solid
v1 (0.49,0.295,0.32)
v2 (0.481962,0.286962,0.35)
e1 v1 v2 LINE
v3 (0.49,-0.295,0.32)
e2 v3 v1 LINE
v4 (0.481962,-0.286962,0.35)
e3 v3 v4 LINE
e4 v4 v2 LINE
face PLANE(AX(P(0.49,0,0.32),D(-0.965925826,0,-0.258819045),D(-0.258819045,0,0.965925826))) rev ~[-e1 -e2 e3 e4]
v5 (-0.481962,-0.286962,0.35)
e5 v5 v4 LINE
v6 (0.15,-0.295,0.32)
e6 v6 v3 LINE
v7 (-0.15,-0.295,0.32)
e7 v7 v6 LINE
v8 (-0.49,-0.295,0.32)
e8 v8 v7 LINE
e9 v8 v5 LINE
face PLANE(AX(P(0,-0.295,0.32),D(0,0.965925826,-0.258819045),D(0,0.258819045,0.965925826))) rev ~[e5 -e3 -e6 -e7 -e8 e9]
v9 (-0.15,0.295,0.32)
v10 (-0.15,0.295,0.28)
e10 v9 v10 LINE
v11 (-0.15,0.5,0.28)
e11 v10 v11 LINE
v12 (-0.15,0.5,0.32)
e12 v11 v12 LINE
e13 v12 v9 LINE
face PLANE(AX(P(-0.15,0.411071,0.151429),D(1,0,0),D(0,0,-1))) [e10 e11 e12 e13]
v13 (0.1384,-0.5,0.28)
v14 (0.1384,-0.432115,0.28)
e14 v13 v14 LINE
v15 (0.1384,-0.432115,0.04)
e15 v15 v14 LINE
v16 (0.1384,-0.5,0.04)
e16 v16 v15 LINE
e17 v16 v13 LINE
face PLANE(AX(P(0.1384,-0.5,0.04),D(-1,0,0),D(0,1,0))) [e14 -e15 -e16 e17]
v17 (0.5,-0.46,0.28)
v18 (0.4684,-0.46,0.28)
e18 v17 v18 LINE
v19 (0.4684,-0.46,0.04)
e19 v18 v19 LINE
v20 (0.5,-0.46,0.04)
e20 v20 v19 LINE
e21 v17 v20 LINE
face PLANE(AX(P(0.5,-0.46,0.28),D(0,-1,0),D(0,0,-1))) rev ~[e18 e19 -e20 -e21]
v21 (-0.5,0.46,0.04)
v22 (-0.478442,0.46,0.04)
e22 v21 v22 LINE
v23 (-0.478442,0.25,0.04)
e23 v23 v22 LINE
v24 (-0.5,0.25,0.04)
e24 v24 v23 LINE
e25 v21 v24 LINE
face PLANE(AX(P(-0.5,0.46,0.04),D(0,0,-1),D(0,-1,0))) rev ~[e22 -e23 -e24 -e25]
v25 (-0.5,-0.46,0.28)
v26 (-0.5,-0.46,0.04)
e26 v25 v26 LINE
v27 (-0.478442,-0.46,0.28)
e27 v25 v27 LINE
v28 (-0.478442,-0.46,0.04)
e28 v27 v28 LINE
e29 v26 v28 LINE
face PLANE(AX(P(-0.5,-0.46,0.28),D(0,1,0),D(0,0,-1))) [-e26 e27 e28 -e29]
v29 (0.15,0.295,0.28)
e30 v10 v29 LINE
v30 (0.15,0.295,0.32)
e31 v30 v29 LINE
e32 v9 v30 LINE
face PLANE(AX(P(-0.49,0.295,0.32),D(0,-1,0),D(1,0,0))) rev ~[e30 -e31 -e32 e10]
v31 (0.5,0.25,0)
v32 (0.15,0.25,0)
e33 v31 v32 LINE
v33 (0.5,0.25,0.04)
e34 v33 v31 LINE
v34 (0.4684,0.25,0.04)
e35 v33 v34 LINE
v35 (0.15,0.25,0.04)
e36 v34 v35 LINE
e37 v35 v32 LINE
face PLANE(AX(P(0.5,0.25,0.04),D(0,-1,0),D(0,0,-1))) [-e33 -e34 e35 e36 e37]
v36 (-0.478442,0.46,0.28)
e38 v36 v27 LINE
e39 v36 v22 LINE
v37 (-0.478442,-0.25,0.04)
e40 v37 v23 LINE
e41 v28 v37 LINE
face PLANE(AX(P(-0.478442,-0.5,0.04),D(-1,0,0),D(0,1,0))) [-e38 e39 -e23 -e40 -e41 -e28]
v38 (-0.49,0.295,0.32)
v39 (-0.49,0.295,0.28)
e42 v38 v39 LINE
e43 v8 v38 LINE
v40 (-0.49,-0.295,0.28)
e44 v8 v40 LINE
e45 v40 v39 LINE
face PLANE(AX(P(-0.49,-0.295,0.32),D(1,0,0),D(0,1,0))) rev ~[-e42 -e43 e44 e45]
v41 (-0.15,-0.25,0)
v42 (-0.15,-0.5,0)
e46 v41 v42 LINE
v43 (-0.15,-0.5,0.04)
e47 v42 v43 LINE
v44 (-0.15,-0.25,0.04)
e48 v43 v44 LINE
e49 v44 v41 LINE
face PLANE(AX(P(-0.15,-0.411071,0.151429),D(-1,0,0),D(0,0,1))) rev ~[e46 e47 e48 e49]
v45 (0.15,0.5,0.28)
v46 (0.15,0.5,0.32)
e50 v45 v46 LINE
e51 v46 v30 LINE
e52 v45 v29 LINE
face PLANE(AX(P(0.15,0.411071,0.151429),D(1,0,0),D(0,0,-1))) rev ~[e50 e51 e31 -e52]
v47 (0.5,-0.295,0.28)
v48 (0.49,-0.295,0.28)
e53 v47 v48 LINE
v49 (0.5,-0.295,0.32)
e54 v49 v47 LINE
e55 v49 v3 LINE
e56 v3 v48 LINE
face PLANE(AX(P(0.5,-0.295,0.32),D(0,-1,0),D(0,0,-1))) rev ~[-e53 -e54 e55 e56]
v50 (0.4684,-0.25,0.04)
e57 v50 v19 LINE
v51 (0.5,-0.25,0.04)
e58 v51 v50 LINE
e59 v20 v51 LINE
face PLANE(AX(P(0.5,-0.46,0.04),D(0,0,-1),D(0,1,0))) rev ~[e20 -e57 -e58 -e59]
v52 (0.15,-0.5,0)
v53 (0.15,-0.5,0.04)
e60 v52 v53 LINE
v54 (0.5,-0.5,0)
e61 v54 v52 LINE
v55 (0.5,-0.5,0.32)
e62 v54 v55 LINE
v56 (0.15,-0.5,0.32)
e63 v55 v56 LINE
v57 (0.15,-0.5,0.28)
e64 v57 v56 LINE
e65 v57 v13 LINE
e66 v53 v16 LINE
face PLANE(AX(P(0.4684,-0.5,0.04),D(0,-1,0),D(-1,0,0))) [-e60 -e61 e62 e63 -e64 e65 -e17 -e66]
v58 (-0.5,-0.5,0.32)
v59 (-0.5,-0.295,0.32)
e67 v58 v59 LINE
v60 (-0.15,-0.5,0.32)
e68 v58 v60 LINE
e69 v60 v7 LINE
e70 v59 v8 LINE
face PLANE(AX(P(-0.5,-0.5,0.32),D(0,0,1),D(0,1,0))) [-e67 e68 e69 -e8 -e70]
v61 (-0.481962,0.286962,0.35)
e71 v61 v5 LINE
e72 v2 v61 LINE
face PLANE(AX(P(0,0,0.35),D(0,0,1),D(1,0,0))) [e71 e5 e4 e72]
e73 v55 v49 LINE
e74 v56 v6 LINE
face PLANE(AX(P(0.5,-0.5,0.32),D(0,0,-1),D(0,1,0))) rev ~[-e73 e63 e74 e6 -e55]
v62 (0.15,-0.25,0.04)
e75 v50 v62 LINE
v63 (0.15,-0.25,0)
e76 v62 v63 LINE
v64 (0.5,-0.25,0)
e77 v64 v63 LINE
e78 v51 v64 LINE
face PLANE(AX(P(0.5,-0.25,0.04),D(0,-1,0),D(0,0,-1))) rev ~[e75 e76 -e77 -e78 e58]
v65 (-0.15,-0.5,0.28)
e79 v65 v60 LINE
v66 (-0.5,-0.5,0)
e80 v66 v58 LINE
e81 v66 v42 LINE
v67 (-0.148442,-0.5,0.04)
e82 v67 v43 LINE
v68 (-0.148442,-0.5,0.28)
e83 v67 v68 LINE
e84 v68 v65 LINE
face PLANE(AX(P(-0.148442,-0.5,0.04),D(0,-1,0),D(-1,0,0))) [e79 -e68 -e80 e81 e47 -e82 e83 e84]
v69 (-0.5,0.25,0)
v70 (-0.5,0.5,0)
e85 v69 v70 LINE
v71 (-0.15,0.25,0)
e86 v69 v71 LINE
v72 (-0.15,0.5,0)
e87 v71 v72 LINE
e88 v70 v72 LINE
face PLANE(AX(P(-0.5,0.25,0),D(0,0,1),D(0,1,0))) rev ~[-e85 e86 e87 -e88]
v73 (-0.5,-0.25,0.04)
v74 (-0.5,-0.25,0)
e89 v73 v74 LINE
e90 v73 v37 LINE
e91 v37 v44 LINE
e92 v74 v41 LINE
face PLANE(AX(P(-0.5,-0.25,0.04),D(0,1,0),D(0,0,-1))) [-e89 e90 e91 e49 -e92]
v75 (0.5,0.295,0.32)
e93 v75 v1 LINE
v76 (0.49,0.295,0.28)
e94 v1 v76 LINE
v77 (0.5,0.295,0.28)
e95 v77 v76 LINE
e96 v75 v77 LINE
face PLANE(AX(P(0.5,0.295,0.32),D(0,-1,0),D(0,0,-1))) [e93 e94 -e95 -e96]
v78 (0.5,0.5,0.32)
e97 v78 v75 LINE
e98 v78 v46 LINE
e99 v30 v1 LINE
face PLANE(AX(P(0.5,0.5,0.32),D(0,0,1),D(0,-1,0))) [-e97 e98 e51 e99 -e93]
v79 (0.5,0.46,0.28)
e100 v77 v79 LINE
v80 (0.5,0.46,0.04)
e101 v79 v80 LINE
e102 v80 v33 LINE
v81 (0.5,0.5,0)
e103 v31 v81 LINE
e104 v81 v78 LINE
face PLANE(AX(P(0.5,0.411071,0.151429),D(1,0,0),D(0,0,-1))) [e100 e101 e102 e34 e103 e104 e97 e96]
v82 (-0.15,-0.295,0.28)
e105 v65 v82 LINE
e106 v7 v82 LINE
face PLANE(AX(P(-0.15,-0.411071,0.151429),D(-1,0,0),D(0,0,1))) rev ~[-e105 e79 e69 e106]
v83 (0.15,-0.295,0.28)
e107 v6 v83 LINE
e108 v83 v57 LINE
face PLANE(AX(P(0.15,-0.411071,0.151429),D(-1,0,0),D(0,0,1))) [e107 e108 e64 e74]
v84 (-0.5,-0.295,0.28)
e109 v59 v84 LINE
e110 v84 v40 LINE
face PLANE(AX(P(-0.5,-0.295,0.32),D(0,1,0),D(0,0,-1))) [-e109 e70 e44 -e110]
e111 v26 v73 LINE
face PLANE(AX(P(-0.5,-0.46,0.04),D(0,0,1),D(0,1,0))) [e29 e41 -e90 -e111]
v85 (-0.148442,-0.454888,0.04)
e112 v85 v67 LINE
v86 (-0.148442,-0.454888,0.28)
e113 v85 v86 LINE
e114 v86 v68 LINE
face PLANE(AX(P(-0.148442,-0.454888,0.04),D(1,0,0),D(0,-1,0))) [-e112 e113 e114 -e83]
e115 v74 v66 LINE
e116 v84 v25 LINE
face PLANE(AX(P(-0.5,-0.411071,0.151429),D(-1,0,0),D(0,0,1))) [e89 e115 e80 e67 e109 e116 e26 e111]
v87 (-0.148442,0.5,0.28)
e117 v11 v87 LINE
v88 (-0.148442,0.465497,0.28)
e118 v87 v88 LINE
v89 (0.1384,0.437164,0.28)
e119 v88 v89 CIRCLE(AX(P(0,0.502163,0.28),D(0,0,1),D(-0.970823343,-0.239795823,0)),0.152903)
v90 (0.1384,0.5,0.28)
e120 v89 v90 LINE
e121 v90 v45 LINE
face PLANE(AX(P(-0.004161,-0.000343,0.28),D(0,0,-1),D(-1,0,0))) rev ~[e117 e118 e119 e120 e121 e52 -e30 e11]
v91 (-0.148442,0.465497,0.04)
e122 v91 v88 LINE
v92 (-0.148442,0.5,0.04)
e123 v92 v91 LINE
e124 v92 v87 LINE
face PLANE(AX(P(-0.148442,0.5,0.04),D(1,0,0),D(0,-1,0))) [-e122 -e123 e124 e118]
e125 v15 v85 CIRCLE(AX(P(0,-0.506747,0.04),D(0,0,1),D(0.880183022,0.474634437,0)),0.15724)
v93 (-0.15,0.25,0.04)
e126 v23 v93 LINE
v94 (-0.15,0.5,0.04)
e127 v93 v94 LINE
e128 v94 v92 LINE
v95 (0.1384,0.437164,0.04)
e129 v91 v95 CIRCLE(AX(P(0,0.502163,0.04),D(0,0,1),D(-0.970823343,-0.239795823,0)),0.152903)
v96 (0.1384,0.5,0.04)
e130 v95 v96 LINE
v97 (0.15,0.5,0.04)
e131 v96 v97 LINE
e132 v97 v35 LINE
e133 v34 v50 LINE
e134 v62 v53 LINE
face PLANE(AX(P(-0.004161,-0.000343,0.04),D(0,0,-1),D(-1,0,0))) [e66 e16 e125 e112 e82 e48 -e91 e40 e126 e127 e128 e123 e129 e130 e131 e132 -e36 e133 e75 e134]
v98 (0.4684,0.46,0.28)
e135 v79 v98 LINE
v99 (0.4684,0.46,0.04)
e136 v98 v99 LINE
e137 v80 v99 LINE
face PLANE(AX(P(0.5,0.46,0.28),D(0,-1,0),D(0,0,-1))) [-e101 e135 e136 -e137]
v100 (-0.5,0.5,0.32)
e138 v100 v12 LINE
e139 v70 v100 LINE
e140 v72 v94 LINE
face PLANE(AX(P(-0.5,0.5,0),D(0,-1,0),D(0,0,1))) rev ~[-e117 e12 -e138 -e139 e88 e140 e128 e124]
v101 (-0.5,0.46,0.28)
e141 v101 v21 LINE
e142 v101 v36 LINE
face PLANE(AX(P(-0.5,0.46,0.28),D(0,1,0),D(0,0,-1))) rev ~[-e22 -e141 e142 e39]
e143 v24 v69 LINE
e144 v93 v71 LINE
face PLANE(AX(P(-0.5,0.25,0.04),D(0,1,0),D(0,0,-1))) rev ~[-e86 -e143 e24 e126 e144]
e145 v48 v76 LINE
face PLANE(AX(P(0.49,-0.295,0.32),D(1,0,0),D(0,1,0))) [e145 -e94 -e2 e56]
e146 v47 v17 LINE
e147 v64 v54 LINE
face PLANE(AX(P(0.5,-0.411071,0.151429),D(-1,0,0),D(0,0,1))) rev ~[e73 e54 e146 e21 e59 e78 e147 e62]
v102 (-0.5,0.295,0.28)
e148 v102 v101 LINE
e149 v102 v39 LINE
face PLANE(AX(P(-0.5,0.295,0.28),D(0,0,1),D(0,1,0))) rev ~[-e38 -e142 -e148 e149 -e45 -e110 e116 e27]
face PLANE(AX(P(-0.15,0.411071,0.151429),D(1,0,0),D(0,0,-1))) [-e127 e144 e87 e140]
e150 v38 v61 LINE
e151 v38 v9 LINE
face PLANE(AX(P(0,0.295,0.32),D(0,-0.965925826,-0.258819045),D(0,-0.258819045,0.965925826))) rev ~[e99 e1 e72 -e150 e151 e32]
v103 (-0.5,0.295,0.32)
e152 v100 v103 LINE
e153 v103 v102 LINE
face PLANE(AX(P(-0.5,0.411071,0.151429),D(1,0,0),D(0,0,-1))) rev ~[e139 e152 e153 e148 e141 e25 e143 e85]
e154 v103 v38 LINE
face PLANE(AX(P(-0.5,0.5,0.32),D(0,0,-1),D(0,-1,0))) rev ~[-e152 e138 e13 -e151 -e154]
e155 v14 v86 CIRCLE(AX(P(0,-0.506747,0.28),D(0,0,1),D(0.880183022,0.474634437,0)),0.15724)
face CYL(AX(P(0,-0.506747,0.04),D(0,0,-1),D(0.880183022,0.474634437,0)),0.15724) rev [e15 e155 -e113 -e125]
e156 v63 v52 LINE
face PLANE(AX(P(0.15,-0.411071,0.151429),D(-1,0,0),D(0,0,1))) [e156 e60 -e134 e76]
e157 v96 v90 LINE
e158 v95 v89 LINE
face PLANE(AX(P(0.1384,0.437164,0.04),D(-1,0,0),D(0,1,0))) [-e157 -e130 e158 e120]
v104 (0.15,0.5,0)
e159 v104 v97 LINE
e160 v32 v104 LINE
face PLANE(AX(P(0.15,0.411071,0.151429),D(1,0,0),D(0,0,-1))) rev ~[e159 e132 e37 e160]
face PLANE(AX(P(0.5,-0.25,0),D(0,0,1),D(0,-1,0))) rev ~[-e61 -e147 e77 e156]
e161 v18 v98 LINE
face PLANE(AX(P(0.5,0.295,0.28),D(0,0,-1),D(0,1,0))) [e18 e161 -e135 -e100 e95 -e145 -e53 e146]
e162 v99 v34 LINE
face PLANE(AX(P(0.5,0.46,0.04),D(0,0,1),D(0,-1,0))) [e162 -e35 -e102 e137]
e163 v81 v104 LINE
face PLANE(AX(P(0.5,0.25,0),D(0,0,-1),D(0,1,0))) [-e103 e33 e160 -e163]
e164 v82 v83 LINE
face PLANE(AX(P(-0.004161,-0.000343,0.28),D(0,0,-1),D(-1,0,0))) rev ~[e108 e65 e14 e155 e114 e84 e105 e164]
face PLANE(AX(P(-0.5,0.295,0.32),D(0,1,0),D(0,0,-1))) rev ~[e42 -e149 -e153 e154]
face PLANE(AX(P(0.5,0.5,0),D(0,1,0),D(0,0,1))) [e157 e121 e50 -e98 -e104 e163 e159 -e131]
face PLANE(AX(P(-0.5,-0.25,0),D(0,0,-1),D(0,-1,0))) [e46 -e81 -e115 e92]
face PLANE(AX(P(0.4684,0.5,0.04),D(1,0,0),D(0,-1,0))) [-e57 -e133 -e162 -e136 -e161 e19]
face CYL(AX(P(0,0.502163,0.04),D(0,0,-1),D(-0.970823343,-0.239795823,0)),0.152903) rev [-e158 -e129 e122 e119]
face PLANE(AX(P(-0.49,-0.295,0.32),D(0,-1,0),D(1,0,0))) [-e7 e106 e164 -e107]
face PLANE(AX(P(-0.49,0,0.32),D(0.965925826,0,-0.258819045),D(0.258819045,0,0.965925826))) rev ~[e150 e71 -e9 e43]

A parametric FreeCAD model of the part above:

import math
import FreeCAD as App
import Part
import Sketcher
from FreeCAD import Vector


def add_polygon(sketch, points):
    """Adds a closed chain of lines whose ends are joined by coincident constraints."""
    first, n = sketch.GeometryCount, len(points)
    for a, b in zip(points, points[1:] + points[:1]):
        sketch.addGeometry(Part.LineSegment(App.Vector(*a, 0), App.Vector(*b, 0)), False)
    for i in range(n):
        sketch.addConstraint(Sketcher.Constraint("Coincident", first + i, 2, first + (i + 1) % n, 1))

doc = App.newDocument("Part")
params = doc.addObject("Spreadsheet::Sheet", "Params")
for row, (alias, value) in enumerate([
    ("sketch1_height", "1 mm"),
    ("sketch1_width", "0.33 mm"),
    ("pad1_length", "0.24 mm"),
    ("sketch2_width", "0.98 mm"),
    ("sketch2_height", "0.59 mm"),
    ("pad2_length", "0.03 mm"),
    ("pad2_taper", "-15 deg"),
    ("sketch3_width", "0.98 mm"),
    ("sketch3_height", "0.59 mm"),
    ("pad3_length", "0.04 mm"),
    ("sketch4_width", "0.21 mm"),
    ("sketch4_width2", "0.25 mm"),
    ("sketch4_height", "0.04 mm"),
    ("sketch4_height2", "0.24 mm"),
    ("pad4_length", "0.35 mm"),
    ("sketch5_width", "0.21 mm"),
    ("sketch5_width2", "0.25 mm"),
    ("sketch5_height", "0.04 mm"),
    ("sketch5_height2", "0.24 mm"),
    ("pad5_length", "0.35 mm"),
], start=1):
    params.set(f"A{row}", alias)
    params.set(f"B{row}", "=" + value)
    params.setAlias(f"B{row}", alias)

body = doc.addObject("PartDesign::Body", "Body")

# Sketch on XY plane
sketch1 = body.newObject("Sketcher::SketchObject", "Sketch")
sketch1.AttachmentSupport = (doc.getObject("XY_Plane"), [""])
sketch1.MapMode = "FlatFace"
sketch1.AttachmentOffset = App.Placement(Vector(0, 0, 0.04), App.Rotation())
sketch1.addGeometry([
    Part.LineSegment(Vector(-0.148, 0.465, 0), Vector(-0.148, 0.5, 0)),  # 0
    Part.LineSegment(Vector(-0.148, 0.5, 0), Vector(-0.478, 0.5, 0)),  # 1
    Part.LineSegment(Vector(-0.478, 0.5, 0), Vector(-0.478, -0.5, 0)),  # 2
    Part.LineSegment(Vector(-0.478, -0.5, 0), Vector(-0.148, -0.5, 0)),  # 3
    Part.LineSegment(Vector(-0.148, -0.5, 0), Vector(-0.148, -0.455, 0)),  # 4
    Part.ArcOfCircle(Part.Circle(Vector(0, -0.507, 0), Vector(0, 0, 1), 0.157), math.radians(28), math.radians(161)),  # 5
    Part.LineSegment(Vector(0.138, -0.432, 0), Vector(0.138, -0.5, 0)),  # 6
    Part.LineSegment(Vector(0.138, -0.5, 0), Vector(0.468, -0.5, 0)),  # 7
    Part.LineSegment(Vector(0.468, -0.5, 0), Vector(0.468, 0.5, 0)),  # 8
    Part.LineSegment(Vector(0.468, 0.5, 0), Vector(0.138, 0.5, 0)),  # 9
    Part.LineSegment(Vector(0.138, 0.5, 0), Vector(0.138, 0.437, 0)),  # 10
    Part.ArcOfCircle(Part.Circle(Vector(0, 0.502, 0), Vector(0, 0, 1), 0.153), math.radians(-166), math.radians(-25)),  # 11
], False)
sketch1.addConstraint([
    Sketcher.Constraint("Coincident", 0, 2, 1, 1),
    Sketcher.Constraint("Coincident", 1, 2, 2, 1),
    Sketcher.Constraint("Coincident", 2, 2, 3, 1),
    Sketcher.Constraint("Coincident", 3, 2, 4, 1),
    Sketcher.Constraint("Coincident", 4, 2, 5, 2),
    Sketcher.Constraint("Coincident", 5, 1, 6, 1),
    Sketcher.Constraint("Coincident", 6, 2, 7, 1),
    Sketcher.Constraint("Coincident", 7, 2, 8, 1),
    Sketcher.Constraint("Coincident", 8, 2, 9, 1),
    Sketcher.Constraint("Coincident", 9, 2, 10, 1),
    Sketcher.Constraint("Coincident", 10, 2, 11, 2),
    Sketcher.Constraint("Coincident", 11, 1, 0, 1),
    Sketcher.Constraint("Vertical", 0),
    Sketcher.Constraint("Horizontal", 1),
    Sketcher.Constraint("Vertical", 2),
    Sketcher.Constraint("Horizontal", 3),
    Sketcher.Constraint("Vertical", 4),
    Sketcher.Constraint("Vertical", 6),
    Sketcher.Constraint("Horizontal", 7),
    Sketcher.Constraint("Vertical", 8),
    Sketcher.Constraint("Horizontal", 9),
    Sketcher.Constraint("Vertical", 10),
    Sketcher.Constraint("Symmetric", 0, 2, 3, 2, -1),
    Sketcher.Constraint("Symmetric", 6, 2, 9, 2, -1),
    Sketcher.Constraint("PointOnObject", 5, 3, -2),
    Sketcher.Constraint("PointOnObject", 11, 3, -2),
    Sketcher.Constraint("Horizontal", 3, 2, 6, 2),
    Sketcher.Constraint("Equal", 3, 7),
    Sketcher.Constraint("DistanceY", 2, 2, 2, 1, 1.0),
    Sketcher.Constraint("DistanceX", 1, 2, 1, 1, 0.33),
    Sketcher.Constraint("Radius", 5, 0.15724),
    Sketcher.Constraint("Radius", 11, 0.152903),
    Sketcher.Constraint("DistanceY", 10, 2, 11, 3, 0.064999),
    Sketcher.Constraint("DistanceY", 0, 1, 0, 2, 0.034503),
    Sketcher.Constraint("DistanceY", 4, 1, 4, 2, 0.045112),
    Sketcher.Constraint("DistanceY", 6, 2, 6, 1, 0.067885),
])
sketch1.setExpression("Constraints[28]", "Params.sketch1_height")
sketch1.setExpression("Constraints[29]", "Params.sketch1_width")
pad1 = body.newObject("PartDesign::Pad", "Pad")
pad1.Profile = sketch1
pad1.setExpression("Length", "Params.pad1_length")
body2 = doc.addObject("PartDesign::Body", "Body001")

# Sketch on XY plane
sketch2 = body2.newObject("Sketcher::SketchObject", "Sketch001")
sketch2.AttachmentSupport = (doc.getObject("XY_Plane001"), [""])
sketch2.MapMode = "FlatFace"
sketch2.AttachmentOffset = App.Placement(Vector(0, 0, 0.32), App.Rotation())
add_polygon(sketch2, [(-0.5, 0.3), (-0.5, -0.3), (0.5, -0.3), (0.5, 0.3)])  # lines 0-3
sketch2.addConstraint([
    Sketcher.Constraint("Vertical", 0),
    Sketcher.Constraint("Horizontal", 1),
    Sketcher.Constraint("Vertical", 2),
    Sketcher.Constraint("Horizontal", 3),
    Sketcher.Constraint("Symmetric", 0, 2, 2, 2, -1, 1),
    Sketcher.Constraint("DistanceX", 1, 1, 1, 2, 0.98),
    Sketcher.Constraint("DistanceY", 0, 2, 0, 1, 0.59),
])
sketch2.setExpression("Constraints[9]", "Params.sketch2_width")
sketch2.setExpression("Constraints[10]", "Params.sketch2_height")
pad2 = body2.newObject("PartDesign::Pad", "Pad001")
pad2.Profile = sketch2
pad2.setExpression("Length", "Params.pad2_length")
pad2.setExpression("TaperAngle", "Params.pad2_taper")
body.AllowCompound = True
doc.recompute()

boolean = body.newObject("PartDesign::Boolean", "Boolean")
boolean.Type = "Fuse"
boolean.addObjects([body2])

# Sketch on XY plane
sketch3 = body.newObject("Sketcher::SketchObject", "Sketch002")
sketch3.AttachmentSupport = (doc.getObject("XY_Plane"), [""])
sketch3.MapMode = "FlatFace"
sketch3.AttachmentOffset = App.Placement(Vector(0, 0, 0.32), App.Rotation())
add_polygon(sketch3, [(-0.5, 0.3), (-0.5, -0.3), (0.5, -0.3), (0.5, 0.3)])  # lines 0-3
sketch3.addConstraint([
    Sketcher.Constraint("Vertical", 0),
    Sketcher.Constraint("Horizontal", 1),
    Sketcher.Constraint("Vertical", 2),
    Sketcher.Constraint("Horizontal", 3),
    Sketcher.Constraint("Symmetric", 0, 2, 2, 2, -1, 1),
    Sketcher.Constraint("DistanceX", 1, 1, 1, 2, 0.98),
    Sketcher.Constraint("DistanceY", 0, 2, 0, 1, 0.59),
])
sketch3.setExpression("Constraints[9]", "Params.sketch3_width")
sketch3.setExpression("Constraints[10]", "Params.sketch3_height")
pad3 = body.newObject("PartDesign::Pad", "Pad002")
pad3.Profile = sketch3
pad3.setExpression("Length", "Params.pad3_length")
pad3.Reversed = True

# Sketch on YZ plane
sketch4 = body.newObject("Sketcher::SketchObject", "Sketch003")
sketch4.AttachmentSupport = (doc.getObject("YZ_Plane"), [""])
sketch4.MapMode = "FlatFace"
sketch4.AttachmentOffset = App.Placement(Vector(0, 0, -0.5), App.Rotation())
add_polygon(sketch4, [(0.295, 0.32), (0.295, 0.28), (0.46, 0.28), (0.46, 0.04), (0.25, 0.04), (0.25, 0), (0.5, 0), (0.5, 0.32)])  # lines 0-7
add_polygon(sketch4, [(-0.25, 0), (-0.25, 0.04), (-0.46, 0.04), (-0.46, 0.28), (-0.295, 0.28), (-0.295, 0.32), (-0.5, 0.32), (-0.5, 0)])  # lines 8-15
sketch4.addConstraint([
    Sketcher.Constraint("Vertical", 0),
    Sketcher.Constraint("Horizontal", 1),
    Sketcher.Constraint("Vertical", 2),
    Sketcher.Constraint("Horizontal", 3),
    Sketcher.Constraint("Vertical", 4),
    Sketcher.Constraint("Horizontal", 5),
    Sketcher.Constraint("Vertical", 6),
    Sketcher.Constraint("Horizontal", 7),
    Sketcher.Constraint("Vertical", 8),
    Sketcher.Constraint("Horizontal", 9),
    Sketcher.Constraint("Vertical", 10),
    Sketcher.Constraint("Horizontal", 11),
    Sketcher.Constraint("Vertical", 12),
    Sketcher.Constraint("Horizontal", 13),
    Sketcher.Constraint("Vertical", 14),
    Sketcher.Constraint("Horizontal", 15),
    Sketcher.Constraint("Symmetric", 5, 2, 14, 2, -1, 1),
    Sketcher.Constraint("Symmetric", 3, 2, 8, 2, -2),
    Sketcher.Constraint("Symmetric", 1, 2, 10, 2, -2),
    Sketcher.Constraint("Symmetric", 7, 2, 12, 2, -2),
    Sketcher.Constraint("PointOnObject", 4, 2, -1),
    Sketcher.Constraint("Equal", 0, 4),
    Sketcher.Constraint("DistanceX", 3, 2, 3, 1, 0.21),
    Sketcher.Constraint("DistanceX", 5, 1, 5, 2, 0.25),
    Sketcher.Constraint("DistanceY", 0, 2, 0, 1, 0.04),
    Sketcher.Constraint("DistanceY", 2, 2, 2, 1, 0.24),
    Sketcher.Constraint("DistanceX", -1, 1, 5, 2, 0.5),
    Sketcher.Constraint("DistanceX", 1, 1, 1, 2, 0.165),
])
sketch4.setExpression("Constraints[38]", "Params.sketch4_width")
sketch4.setExpression("Constraints[39]", "Params.sketch4_width2")
sketch4.setExpression("Constraints[40]", "Params.sketch4_height")
sketch4.setExpression("Constraints[41]", "Params.sketch4_height2")
pad4 = body.newObject("PartDesign::Pad", "Pad003")
pad4.Profile = sketch4
pad4.setExpression("Length", "Params.pad4_length")

# Sketch on YZ plane
sketch5 = body.newObject("Sketcher::SketchObject", "Sketch004")
sketch5.AttachmentSupport = (doc.getObject("YZ_Plane"), [""])
sketch5.MapMode = "FlatFace"
sketch5.AttachmentOffset = App.Placement(Vector(0, 0, 0.5), App.Rotation())
add_polygon(sketch5, [(0.295, 0.32), (0.295, 0.28), (0.46, 0.28), (0.46, 0.04), (0.25, 0.04), (0.25, 0), (0.5, 0), (0.5, 0.32)])  # lines 0-7
add_polygon(sketch5, [(-0.25, 0), (-0.25, 0.04), (-0.46, 0.04), (-0.46, 0.28), (-0.295, 0.28), (-0.295, 0.32), (-0.5, 0.32), (-0.5, 0)])  # lines 8-15
sketch5.addConstraint([
    Sketcher.Constraint("Vertical", 0),
    Sketcher.Constraint("Horizontal", 1),
    Sketcher.Constraint("Vertical", 2),
    Sketcher.Constraint("Horizontal", 3),
    Sketcher.Constraint("Vertical", 4),
    Sketcher.Constraint("Horizontal", 5),
    Sketcher.Constraint("Vertical", 6),
    Sketcher.Constraint("Horizontal", 7),
    Sketcher.Constraint("Vertical", 8),
    Sketcher.Constraint("Horizontal", 9),
    Sketcher.Constraint("Vertical", 10),
    Sketcher.Constraint("Horizontal", 11),
    Sketcher.Constraint("Vertical", 12),
    Sketcher.Constraint("Horizontal", 13),
    Sketcher.Constraint("Vertical", 14),
    Sketcher.Constraint("Horizontal", 15),
    Sketcher.Constraint("Symmetric", 5, 2, 14, 2, -1, 1),
    Sketcher.Constraint("Symmetric", 3, 2, 8, 2, -2),
    Sketcher.Constraint("Symmetric", 1, 2, 10, 2, -2),
    Sketcher.Constraint("Symmetric", 7, 2, 12, 2, -2),
    Sketcher.Constraint("PointOnObject", 4, 2, -1),
    Sketcher.Constraint("Equal", 0, 4),
    Sketcher.Constraint("DistanceX", 3, 2, 3, 1, 0.21),
    Sketcher.Constraint("DistanceX", 5, 1, 5, 2, 0.25),
    Sketcher.Constraint("DistanceY", 0, 2, 0, 1, 0.04),
    Sketcher.Constraint("DistanceY", 2, 2, 2, 1, 0.24),
    Sketcher.Constraint("DistanceX", -1, 1, 5, 2, 0.5),
    Sketcher.Constraint("DistanceX", 1, 1, 1, 2, 0.165),
])
sketch5.setExpression("Constraints[38]", "Params.sketch5_width")
sketch5.setExpression("Constraints[39]", "Params.sketch5_width2")
sketch5.setExpression("Constraints[40]", "Params.sketch5_height")
sketch5.setExpression("Constraints[41]", "Params.sketch5_height2")
pad5 = body.newObject("PartDesign::Pad", "Pad004")
pad5.Profile = sketch5
pad5.setExpression("Length", "Params.pad5_length")
pad5.Reversed = True

doc.recompute()
